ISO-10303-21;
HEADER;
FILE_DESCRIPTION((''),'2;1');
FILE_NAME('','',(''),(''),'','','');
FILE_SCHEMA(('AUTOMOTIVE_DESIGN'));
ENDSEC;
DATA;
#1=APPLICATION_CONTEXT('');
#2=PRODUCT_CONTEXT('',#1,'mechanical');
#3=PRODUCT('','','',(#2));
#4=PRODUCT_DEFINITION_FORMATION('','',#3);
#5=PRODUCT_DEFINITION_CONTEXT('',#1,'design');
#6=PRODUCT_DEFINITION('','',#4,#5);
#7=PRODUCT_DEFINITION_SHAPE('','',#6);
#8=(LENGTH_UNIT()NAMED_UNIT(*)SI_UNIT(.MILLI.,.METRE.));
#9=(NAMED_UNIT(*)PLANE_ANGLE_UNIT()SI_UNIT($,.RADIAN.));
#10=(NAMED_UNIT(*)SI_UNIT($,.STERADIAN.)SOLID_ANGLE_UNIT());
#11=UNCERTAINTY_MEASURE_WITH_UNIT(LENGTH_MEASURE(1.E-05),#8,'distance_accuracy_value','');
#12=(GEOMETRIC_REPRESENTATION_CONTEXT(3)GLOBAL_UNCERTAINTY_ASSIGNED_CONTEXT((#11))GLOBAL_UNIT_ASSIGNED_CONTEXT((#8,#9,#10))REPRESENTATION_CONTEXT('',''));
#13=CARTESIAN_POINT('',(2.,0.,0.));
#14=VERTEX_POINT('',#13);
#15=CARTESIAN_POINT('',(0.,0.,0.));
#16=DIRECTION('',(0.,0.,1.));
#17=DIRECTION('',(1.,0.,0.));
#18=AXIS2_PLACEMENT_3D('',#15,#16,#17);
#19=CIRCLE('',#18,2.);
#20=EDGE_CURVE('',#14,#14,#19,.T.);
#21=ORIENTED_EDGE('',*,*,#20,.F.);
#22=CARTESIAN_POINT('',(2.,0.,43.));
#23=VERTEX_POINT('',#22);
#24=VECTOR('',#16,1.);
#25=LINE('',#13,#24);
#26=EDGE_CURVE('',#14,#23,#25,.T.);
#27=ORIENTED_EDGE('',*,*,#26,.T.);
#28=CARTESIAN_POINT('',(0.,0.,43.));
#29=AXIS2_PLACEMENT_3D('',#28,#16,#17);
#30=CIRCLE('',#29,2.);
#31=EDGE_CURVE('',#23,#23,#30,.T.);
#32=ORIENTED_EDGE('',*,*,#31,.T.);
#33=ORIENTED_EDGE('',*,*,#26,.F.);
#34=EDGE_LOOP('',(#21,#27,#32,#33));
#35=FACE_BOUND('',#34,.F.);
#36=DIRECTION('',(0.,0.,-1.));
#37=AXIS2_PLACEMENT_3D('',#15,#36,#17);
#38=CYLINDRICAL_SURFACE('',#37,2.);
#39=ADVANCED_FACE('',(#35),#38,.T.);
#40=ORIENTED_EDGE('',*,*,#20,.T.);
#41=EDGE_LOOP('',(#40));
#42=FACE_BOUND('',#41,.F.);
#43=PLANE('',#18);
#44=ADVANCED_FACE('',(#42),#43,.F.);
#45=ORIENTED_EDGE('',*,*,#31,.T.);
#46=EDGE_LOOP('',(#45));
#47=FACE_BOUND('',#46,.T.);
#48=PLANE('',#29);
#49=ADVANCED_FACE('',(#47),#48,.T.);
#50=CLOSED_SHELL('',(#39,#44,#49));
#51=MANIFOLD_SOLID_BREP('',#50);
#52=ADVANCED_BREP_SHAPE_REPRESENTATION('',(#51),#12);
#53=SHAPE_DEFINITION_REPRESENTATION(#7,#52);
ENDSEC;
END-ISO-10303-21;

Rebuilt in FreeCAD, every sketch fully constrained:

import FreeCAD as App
import Part
import Sketcher
from FreeCAD import Vector

doc = App.newDocument("Part")
body = doc.addObject("PartDesign::Body", "Body")

# Sketch on XY plane
sketch1 = body.newObject("Sketcher::SketchObject", "Sketch")
sketch1.AttachmentSupport = (doc.getObject("XY_Plane"), [""])
sketch1.MapMode = "FlatFace"
sketch1.addGeometry(Part.Circle(Vector(0, 0, 0), Vector(0, 0, 1), 2), False)
sketch1.addConstraint([
    Sketcher.Constraint("Coincident", 0, 3, -1, 1),
    Sketcher.Constraint("Diameter", 0, 4.0),
])
pad1 = body.newObject("PartDesign::Pad", "Pad")
pad1.Profile = sketch1
pad1.Length = 43

doc.recompute()
